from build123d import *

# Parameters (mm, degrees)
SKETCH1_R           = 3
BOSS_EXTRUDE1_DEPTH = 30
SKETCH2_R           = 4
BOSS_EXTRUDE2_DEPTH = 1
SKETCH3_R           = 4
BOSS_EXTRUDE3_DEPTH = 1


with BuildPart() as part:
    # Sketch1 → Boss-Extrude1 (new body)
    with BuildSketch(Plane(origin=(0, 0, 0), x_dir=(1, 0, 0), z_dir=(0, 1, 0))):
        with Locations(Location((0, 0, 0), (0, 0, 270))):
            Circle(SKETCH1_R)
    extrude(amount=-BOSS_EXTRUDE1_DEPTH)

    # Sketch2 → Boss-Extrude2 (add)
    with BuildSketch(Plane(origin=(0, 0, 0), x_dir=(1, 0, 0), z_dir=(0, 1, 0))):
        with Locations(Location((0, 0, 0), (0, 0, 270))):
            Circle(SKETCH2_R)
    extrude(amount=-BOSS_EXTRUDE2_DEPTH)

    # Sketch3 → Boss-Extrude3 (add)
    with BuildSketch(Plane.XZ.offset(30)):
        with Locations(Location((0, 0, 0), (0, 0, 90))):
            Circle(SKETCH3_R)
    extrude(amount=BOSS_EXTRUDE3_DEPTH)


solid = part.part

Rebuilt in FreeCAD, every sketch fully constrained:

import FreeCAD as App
import Part
import Sketcher

V = App.Vector

doc = App.newDocument("Part")
body = doc.addObject("PartDesign::Body", "Body")

# Sketch on XZ plane
sketch1 = doc.addObject("Sketcher::SketchObject", "Sketch")
body.addObject(sketch1)
sketch1.AttachmentSupport = (doc.XZ_Plane, [""])
sketch1.MapMode = "FlatFace"
sketch1.addGeometry(Part.Circle(V(0, 0, 0), V(0, 0, 1), 3), False)
sketch1.addConstraint(Sketcher.Constraint("Coincident", 0, 3, -1, 1))
sketch1.addConstraint(Sketcher.Constraint("Diameter", 0, 6.0))
pad1 = doc.addObject("PartDesign::Pad", "Pad")
body.addObject(pad1)
pad1.Profile = sketch1
pad1.Length = 30

# Sketch on XZ plane
sketch2 = doc.addObject("Sketcher::SketchObject", "Sketch001")
body.addObject(sketch2)
sketch2.AttachmentSupport = (doc.XZ_Plane, [""])
sketch2.MapMode = "FlatFace"
sketch2.addGeometry(Part.Circle(V(0, 0, 0), V(0, 0, 1), 4), False)
sketch2.addConstraint(Sketcher.Constraint("Coincident", 0, 3, -1, 1))
sketch2.addConstraint(Sketcher.Constraint("Diameter", 0, 8.0))
pad2 = doc.addObject("PartDesign::Pad", "Pad001")
body.addObject(pad2)
pad2.Profile = sketch2
pad2.Length = 1

# Sketch on XZ plane
sketch3 = doc.addObject("Sketcher::SketchObject", "Sketch002")
body.addObject(sketch3)
sketch3.AttachmentSupport = (doc.XZ_Plane, [""])
sketch3.MapMode = "FlatFace"
sketch3.AttachmentOffset = App.Placement(V(0, 0, 30), App.Rotation())
sketch3.addGeometry(Part.Circle(V(0, 0, 0), V(0, 0, 1), 4), False)
sketch3.addConstraint(Sketcher.Constraint("Coincident", 0, 3, -1, 1))
sketch3.addConstraint(Sketcher.Constraint("Diameter", 0, 8.0))
pad3 = doc.addObject("PartDesign::Pad", "Pad002")
body.addObject(pad3)
pad3.Profile = sketch3
pad3.Length = 1

doc.recompute()
